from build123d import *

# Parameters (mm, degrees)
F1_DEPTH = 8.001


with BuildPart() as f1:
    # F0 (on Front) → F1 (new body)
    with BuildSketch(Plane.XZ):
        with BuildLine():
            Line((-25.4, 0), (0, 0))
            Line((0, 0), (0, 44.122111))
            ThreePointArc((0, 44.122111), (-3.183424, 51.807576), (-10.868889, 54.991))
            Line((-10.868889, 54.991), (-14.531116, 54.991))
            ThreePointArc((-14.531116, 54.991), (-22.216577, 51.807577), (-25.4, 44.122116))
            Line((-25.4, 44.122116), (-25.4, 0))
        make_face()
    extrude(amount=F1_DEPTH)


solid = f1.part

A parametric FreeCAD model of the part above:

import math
import FreeCAD as App
import Part
import Sketcher
from FreeCAD import Vector
Q = App.Units.Quantity

doc = App.newDocument("Part")
body = doc.addObject("PartDesign::Body", "Body")

# Sketch on XZ plane
sketch1 = body.newObject("Sketcher::SketchObject", "Sketch")
sketch1.AttachmentSupport = (doc.getObject("XZ_Plane"), [""])
sketch1.MapMode = "FlatFace"
sketch1.addGeometry([
    Part.LineSegment(Vector(-25.4, 0, 0), Vector(0, 0, 0)),  # 0
    Part.LineSegment(Vector(0, 0, 0), Vector(0, 44.1, 0)),  # 1
    Part.ArcOfCircle(Part.Circle(Vector(-10.9, 44.1, 0), Vector(0, 0, 1), 10.9), math.radians(0), math.radians(90)),  # 2
    Part.LineSegment(Vector(-10.9, 55, 0), Vector(-14.5, 55, 0)),  # 3
    Part.ArcOfCircle(Part.Circle(Vector(-14.5, 44.1, 0), Vector(0, 0, 1), 10.9), math.radians(90), math.radians(180)),  # 4
    Part.LineSegment(Vector(-25.4, 44.1, 0), Vector(-25.4, 0, 0)),  # 5
], False)
sketch1.addConstraint([
    Sketcher.Constraint("Coincident", 0, 2, 1, 1),
    Sketcher.Constraint("Tangent", 1, 2, 2, 1),
    Sketcher.Constraint("Tangent", 2, 2, 3, 1),
    Sketcher.Constraint("Tangent", 3, 2, 4, 1),
    Sketcher.Constraint("Tangent", 4, 2, 5, 1),
    Sketcher.Constraint("Coincident", 5, 2, 0, 1),
    Sketcher.Constraint("Horizontal", 0),
    Sketcher.Constraint("Vertical", 1),
    Sketcher.Constraint("Horizontal", 3),
    Sketcher.Constraint("Vertical", 5),
    Sketcher.Constraint("Coincident", 0, 2, -1, 1),
    Sketcher.Constraint("DistanceX", 0, 1, 0, 2, Q("1 in")),
    Sketcher.Constraint("DistanceY", -1, 1, 2, 2, Q("2.165 in")),
    Sketcher.Constraint("Radius", 2, Q("10.868889 mm")),
    Sketcher.Constraint("Radius", 4, Q("10.868886 mm")),
])
pad1 = body.newObject("PartDesign::Pad", "Pad")
pad1.Profile = sketch1
pad1.Length = Q("0.315 in")

doc.recompute()
